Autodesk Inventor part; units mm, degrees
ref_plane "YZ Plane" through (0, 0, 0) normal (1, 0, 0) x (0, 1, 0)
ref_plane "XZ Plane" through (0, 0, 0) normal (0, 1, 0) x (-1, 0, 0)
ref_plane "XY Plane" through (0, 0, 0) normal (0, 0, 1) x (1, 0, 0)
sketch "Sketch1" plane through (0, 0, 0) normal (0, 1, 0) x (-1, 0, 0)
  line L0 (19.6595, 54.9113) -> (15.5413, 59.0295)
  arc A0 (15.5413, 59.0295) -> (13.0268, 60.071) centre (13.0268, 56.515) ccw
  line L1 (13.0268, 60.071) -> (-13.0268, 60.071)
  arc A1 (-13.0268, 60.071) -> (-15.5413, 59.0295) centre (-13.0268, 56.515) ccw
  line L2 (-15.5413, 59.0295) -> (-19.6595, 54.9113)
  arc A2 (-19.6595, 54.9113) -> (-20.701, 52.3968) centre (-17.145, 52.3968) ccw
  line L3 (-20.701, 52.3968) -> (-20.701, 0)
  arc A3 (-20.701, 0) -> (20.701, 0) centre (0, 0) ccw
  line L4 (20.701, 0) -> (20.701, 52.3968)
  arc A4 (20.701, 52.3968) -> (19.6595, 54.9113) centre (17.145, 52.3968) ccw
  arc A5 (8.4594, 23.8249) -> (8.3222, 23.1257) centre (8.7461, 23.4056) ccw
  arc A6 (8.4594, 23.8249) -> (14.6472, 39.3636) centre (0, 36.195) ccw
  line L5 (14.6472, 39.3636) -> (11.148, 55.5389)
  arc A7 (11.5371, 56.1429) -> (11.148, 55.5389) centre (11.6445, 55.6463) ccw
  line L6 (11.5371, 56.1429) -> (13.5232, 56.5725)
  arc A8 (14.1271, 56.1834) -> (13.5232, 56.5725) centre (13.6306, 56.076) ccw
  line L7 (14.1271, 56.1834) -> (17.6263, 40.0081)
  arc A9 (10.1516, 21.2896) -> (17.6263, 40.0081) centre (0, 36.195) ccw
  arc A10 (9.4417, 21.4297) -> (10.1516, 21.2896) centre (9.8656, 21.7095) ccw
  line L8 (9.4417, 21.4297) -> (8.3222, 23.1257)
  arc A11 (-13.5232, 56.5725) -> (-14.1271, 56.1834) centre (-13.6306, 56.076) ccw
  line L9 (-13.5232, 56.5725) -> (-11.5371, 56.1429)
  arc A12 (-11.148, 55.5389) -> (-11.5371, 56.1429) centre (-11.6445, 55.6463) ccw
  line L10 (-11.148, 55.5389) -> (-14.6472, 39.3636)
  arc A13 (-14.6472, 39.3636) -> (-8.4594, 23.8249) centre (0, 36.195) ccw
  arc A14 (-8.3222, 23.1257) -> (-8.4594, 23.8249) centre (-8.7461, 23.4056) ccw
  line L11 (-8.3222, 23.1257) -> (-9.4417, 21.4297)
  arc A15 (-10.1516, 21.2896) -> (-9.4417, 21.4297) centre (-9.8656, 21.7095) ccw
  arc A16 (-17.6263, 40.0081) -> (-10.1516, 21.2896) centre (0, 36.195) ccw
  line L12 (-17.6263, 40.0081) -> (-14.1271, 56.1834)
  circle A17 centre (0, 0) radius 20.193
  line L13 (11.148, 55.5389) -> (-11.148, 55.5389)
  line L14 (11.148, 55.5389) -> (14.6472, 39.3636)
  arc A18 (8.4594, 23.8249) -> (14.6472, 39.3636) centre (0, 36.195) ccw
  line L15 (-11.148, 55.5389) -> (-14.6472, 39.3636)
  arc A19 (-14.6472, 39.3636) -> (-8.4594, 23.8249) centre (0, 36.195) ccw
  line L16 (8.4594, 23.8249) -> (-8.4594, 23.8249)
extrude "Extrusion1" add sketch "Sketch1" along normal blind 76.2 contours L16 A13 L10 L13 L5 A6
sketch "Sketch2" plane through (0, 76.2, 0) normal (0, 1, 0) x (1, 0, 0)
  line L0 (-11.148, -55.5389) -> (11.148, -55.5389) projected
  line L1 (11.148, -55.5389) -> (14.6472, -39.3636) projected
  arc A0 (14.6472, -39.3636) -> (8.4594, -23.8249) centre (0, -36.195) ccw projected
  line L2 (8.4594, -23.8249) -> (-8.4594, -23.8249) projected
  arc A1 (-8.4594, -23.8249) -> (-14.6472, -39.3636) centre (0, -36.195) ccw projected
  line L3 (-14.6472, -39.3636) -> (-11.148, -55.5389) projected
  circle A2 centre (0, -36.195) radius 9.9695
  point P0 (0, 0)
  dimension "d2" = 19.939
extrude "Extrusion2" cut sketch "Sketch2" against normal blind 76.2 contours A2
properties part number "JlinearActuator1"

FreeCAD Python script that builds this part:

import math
import FreeCAD as App
import Part
import Sketcher
Q = App.Units.Quantity

doc = App.newDocument("Part")
body = doc.addObject("PartDesign::Body", "Body")

# Sketch on XZ plane
sketch1 = doc.addObject("Sketcher::SketchObject", "Sketch")
body.addObject(sketch1)
sketch1.AttachmentSupport = (doc.XZ_Plane, [""])
sketch1.MapMode = "FlatFace"
sketch1.addGeometry([
    Part.LineSegment(App.Vector(8.4594, 23.8249, 0), App.Vector(-8.4594, 23.8249, 0)),  # 0
    Part.ArcOfCircle(Part.Circle(App.Vector(0, 36.195, 0), App.Vector(0, 0, 1), 14.98601), math.radians(167.793411), math.radians(235.633389)),  # 1
    Part.LineSegment(App.Vector(-14.6472, 39.3636, 0), App.Vector(-11.148, 55.5389, 0)),  # 2
    Part.LineSegment(App.Vector(-11.148, 55.5389, 0), App.Vector(11.148, 55.5389, 0)),  # 3
    Part.LineSegment(App.Vector(11.148, 55.5389, 0), App.Vector(14.6472, 39.3636, 0)),  # 4
    Part.ArcOfCircle(Part.Circle(App.Vector(0, 36.195, 0), App.Vector(0, 0, 1), 14.986021), math.radians(-55.633389), math.radians(12.206589)),  # 5
], False)
sketch1.addConstraint([
    Sketcher.Constraint("Coincident", 0, 2, 1, 2),
    Sketcher.Constraint("Coincident", 1, 1, 2, 1),
    Sketcher.Constraint("Coincident", 2, 2, 3, 1),
    Sketcher.Constraint("Coincident", 3, 2, 4, 1),
    Sketcher.Constraint("Coincident", 4, 2, 5, 2),
    Sketcher.Constraint("Coincident", 5, 1, 0, 1),
    Sketcher.Constraint("Horizontal", 0),
    Sketcher.Constraint("Horizontal", 3),
    Sketcher.Constraint("Coincident", 5, 3, 1, 3),
    Sketcher.Constraint("PointOnObject", 1, 3, -2),
    Sketcher.Constraint("Radius", 1, Q("0.59 in")),
    Sketcher.Constraint("Radius", 5, Q("0.59 in")),
    Sketcher.Constraint("DistanceX", 0, 2, 0, 1, Q("0.6661 in")),
    Sketcher.Constraint("DistanceX", 3, 1, 3, 2, Q("0.8778 in")),
    Sketcher.Constraint("DistanceY", -1, 1, 1, 3, Q("1.425 in")),
    Sketcher.Constraint("DistanceX", 2, 2, -1, 1, Q("0.4389 in")),
    Sketcher.Constraint("DistanceX", 0, 2, 4, 2, Q("0.9097 in")),
    Sketcher.Constraint("DistanceX", 1, 1, 5, 1, Q("0.9097 in")),
    Sketcher.Constraint("Distance", 2, 16.5495),
])
pad1 = doc.addObject("PartDesign::Pad", "Pad")
body.addObject(pad1)
pad1.Profile = sketch1
pad1.Length = Q("3 in")
pad1.Reversed = True

# Sketch on XZ plane
sketch2 = doc.addObject("Sketcher::SketchObject", "Sketch001")
body.addObject(sketch2)
sketch2.AttachmentSupport = (doc.XZ_Plane, [""])
sketch2.MapMode = "FlatFace"
sketch2.AttachmentOffset = App.Placement(App.Vector(0, 0, -3 * 25.4), App.Rotation())
sketch2.addGeometry(Part.Circle(App.Vector(0, 36, 0), App.Vector(0, 0, 1), 10), False)
sketch2.addConstraint([
    Sketcher.Constraint("PointOnObject", 0, 3, -2),
    Sketcher.Constraint("Diameter", 0, Q("0.785 in")),
    Sketcher.Constraint("DistanceY", -1, 1, 0, 3, Q("1.425 in")),
])
pocket1 = doc.addObject("PartDesign::Pocket", "Pocket")
body.addObject(pocket1)
pocket1.Profile = sketch2
pocket1.Length = Q("3 in")
pocket1.Reversed = True

doc.recompute()
